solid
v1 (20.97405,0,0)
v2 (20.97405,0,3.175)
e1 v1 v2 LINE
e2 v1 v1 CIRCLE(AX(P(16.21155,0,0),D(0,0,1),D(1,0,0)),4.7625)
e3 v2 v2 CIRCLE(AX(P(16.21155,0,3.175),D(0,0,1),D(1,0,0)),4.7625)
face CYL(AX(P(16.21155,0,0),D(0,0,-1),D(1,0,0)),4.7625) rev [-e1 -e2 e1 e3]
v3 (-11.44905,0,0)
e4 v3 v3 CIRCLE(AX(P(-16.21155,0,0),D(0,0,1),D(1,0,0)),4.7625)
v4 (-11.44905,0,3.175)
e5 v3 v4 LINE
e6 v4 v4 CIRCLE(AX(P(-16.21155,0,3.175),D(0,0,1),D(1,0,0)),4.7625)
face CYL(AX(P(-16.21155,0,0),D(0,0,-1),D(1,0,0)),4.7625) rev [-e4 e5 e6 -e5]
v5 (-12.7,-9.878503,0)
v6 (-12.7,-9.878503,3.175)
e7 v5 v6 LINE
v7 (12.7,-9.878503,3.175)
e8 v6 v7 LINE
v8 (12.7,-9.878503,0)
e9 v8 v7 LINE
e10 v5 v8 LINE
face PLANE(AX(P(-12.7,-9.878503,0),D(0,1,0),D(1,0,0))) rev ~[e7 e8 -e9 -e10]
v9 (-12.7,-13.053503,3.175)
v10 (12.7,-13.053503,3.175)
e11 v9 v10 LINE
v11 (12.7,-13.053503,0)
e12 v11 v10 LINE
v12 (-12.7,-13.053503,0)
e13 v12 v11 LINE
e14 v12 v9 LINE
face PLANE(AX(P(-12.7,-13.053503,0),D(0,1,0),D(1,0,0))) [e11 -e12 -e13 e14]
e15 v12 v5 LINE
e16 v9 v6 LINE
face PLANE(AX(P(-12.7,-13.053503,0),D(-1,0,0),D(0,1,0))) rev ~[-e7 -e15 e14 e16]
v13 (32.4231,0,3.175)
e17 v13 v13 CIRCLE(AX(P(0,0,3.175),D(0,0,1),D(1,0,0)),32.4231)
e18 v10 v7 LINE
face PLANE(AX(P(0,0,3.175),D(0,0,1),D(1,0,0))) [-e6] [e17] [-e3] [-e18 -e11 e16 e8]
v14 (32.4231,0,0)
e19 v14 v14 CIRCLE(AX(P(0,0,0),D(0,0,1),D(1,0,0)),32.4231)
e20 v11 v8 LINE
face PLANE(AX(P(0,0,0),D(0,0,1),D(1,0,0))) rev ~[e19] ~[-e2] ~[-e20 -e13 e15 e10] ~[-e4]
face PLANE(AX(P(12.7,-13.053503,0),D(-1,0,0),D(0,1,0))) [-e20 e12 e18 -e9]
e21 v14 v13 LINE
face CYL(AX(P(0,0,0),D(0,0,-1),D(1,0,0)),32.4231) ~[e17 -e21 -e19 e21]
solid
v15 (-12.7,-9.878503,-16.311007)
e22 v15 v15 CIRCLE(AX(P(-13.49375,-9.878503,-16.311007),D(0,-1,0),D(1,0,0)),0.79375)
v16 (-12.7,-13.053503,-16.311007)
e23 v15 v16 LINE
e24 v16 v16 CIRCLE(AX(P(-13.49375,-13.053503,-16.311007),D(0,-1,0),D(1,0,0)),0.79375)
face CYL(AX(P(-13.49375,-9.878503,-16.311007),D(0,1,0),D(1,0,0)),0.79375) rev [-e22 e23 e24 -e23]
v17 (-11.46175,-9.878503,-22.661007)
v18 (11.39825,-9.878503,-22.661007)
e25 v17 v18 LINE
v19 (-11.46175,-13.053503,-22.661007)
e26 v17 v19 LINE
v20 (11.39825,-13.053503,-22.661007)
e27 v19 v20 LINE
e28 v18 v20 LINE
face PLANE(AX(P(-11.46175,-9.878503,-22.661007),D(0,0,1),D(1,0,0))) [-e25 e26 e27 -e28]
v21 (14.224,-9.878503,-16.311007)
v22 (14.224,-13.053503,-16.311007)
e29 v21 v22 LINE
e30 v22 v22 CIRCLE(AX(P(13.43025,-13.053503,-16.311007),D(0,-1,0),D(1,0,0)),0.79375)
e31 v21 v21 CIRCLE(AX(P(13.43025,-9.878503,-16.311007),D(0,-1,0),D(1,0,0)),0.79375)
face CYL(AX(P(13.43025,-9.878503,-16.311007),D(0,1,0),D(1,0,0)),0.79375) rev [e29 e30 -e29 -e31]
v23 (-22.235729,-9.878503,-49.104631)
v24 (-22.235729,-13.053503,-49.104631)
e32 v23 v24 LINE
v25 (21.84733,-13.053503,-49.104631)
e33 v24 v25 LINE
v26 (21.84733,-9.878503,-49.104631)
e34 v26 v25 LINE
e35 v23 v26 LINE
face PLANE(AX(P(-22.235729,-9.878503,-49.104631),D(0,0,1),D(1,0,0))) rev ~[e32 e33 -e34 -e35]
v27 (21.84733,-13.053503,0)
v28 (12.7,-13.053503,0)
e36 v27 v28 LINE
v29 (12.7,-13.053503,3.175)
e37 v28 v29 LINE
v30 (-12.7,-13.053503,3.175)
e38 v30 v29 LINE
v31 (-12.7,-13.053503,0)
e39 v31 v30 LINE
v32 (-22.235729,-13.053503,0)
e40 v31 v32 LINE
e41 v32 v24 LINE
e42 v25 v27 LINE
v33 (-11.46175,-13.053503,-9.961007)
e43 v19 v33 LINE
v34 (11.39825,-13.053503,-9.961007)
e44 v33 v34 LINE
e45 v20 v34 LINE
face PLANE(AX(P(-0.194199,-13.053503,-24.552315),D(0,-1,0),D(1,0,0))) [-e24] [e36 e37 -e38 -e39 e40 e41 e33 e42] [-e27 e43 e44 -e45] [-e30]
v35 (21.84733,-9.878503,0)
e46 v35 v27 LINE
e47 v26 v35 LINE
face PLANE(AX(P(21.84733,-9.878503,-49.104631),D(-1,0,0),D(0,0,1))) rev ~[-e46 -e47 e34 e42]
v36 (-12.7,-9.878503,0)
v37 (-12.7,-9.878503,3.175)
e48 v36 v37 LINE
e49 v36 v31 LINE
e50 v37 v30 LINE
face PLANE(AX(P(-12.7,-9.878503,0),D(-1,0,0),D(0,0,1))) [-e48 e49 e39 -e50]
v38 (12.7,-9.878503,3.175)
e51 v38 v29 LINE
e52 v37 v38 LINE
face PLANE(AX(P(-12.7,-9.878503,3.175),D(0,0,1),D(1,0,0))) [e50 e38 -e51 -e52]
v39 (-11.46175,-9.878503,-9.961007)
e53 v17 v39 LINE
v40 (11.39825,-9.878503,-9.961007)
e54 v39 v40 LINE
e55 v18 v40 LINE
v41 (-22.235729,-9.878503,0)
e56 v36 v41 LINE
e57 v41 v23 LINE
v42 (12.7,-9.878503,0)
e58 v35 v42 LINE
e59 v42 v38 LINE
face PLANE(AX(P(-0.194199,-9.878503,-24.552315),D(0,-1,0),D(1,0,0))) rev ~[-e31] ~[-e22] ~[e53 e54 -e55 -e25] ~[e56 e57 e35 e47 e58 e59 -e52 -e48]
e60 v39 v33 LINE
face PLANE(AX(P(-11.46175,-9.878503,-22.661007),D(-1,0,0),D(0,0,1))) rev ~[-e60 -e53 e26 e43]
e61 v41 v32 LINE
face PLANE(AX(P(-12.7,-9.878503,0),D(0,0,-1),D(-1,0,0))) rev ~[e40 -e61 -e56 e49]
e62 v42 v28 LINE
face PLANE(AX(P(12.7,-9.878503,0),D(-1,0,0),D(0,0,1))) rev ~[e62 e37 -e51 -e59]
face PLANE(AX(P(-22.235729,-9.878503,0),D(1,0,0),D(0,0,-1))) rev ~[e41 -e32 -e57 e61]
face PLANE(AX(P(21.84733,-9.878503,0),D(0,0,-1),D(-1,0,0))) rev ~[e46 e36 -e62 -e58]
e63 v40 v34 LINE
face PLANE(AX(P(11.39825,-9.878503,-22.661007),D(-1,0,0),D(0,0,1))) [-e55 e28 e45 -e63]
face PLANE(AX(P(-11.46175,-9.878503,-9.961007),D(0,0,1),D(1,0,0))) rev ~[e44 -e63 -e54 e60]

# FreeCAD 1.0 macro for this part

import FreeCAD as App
import Part
import Sketcher
from FreeCAD import Vector
Q = App.Units.Quantity


def add_polygon(sketch, points):
    """Adds a closed chain of lines whose ends are joined by coincident constraints."""
    first, n = sketch.GeometryCount, len(points)
    for a, b in zip(points, points[1:] + points[:1]):
        sketch.addGeometry(Part.LineSegment(App.Vector(*a, 0), App.Vector(*b, 0)), False)
    for i in range(n):
        sketch.addConstraint(Sketcher.Constraint("Coincident", first + i, 2, first + (i + 1) % n, 1))

doc = App.newDocument("Part")
body = doc.addObject("PartDesign::Body", "Body")

sketch1 = body.newObject("Sketcher::SketchObject", "Sketch")
sketch1.AttachmentSupport = (doc.getObject("XY_Plane"), [""])
sketch1.MapMode = "FlatFace"
sketch1.addGeometry(Part.Circle(Vector(0, 0, 0), Vector(0, 0, 1), 32.4), False)
add_polygon(sketch1, [(12.7, -13.1), (-12.7, -13.1), (-12.7, -9.9), (12.7, -9.9)])
sketch1.addGeometry(Part.Circle(Vector(-16.2, 0, 0), Vector(0, 0, 1), 4.8), False)
sketch1.addGeometry(Part.Circle(Vector(16.2, 0, 0), Vector(0, 0, 1), 4.8), False)
sketch1.addConstraint([
    Sketcher.Constraint("Horizontal", 1),
    Sketcher.Constraint("Vertical", 2),
    Sketcher.Constraint("Horizontal", 3),
    Sketcher.Constraint("Vertical", 4),
    Sketcher.Constraint("Coincident", 0, 3, -1, 1),
    Sketcher.Constraint("Equal", 5, 6),
    Sketcher.Constraint("Symmetric", 5, 3, 6, 3, -1, 1),
    Sketcher.Constraint("PointOnObject", 5, 3, -1),
    Sketcher.Constraint("DistanceX", 1, 2, 1, 1, Q("1 in")),
    Sketcher.Constraint("Diameter", 0, Q("2.553 in")),
    Sketcher.Constraint("Diameter", 5, Q("0.375 in")),
    Sketcher.Constraint("DistanceX", 1, 2, -1, 1, Q("0.5 in")),
    Sketcher.Constraint("DistanceY", 2, 1, 2, 2, Q("0.125 in")),
    Sketcher.Constraint("DistanceX", 5, 3, 6, 3, Q("1.2765 in")),
    Sketcher.Constraint("DistanceY", 1, 2, -1, 1, 13.053503),
])
pad1 = body.newObject("PartDesign::Pad", "Pad")
pad1.Profile = sketch1
pad1.Length = Q("0.125 in")
body2 = doc.addObject("PartDesign::Body", "Body001")

sketch2 = body2.newObject("Sketcher::SketchObject", "Sketch001")
sketch2.AttachmentSupport = (doc.getObject("XZ_Plane001"), [""])
sketch2.MapMode = "FlatFace"
sketch2.AttachmentOffset = App.Placement(Vector(0, 0, 9.878503), App.Rotation())
add_polygon(sketch2, [(-22.2, 0), (-22.2, -49.1), (21.8, -49.1), (21.8, 0), (12.7, 0), (12.7, 3.2), (-12.7, 3.2), (-12.7, 0)])
sketch2.addGeometry(Part.Circle(Vector(-13.5, -16.3, 0), Vector(0, 0, 1), 0.8), False)
add_polygon(sketch2, [(11.4, -22.7), (-11.5, -22.7), (-11.5, -10), (11.4, -10)])
sketch2.addGeometry(Part.Circle(Vector(13.4, -16.3, 0), Vector(0, 0, 1), 0.8), False)
sketch2.addConstraint([
    Sketcher.Constraint("Vertical", 0),
    Sketcher.Constraint("Horizontal", 1),
    Sketcher.Constraint("Vertical", 2),
    Sketcher.Constraint("Horizontal", 3),
    Sketcher.Constraint("Vertical", 4),
    Sketcher.Constraint("Horizontal", 5),
    Sketcher.Constraint("Vertical", 6),
    Sketcher.Constraint("Horizontal", 7),
    Sketcher.Constraint("Horizontal", 9),
    Sketcher.Constraint("Vertical", 10),
    Sketcher.Constraint("Horizontal", 11),
    Sketcher.Constraint("Vertical", 12),
    Sketcher.Constraint("Equal", 8, 13),
    Sketcher.Constraint("Symmetric", 3, 2, 6, 2, -1, 1),
    Sketcher.Constraint("PointOnObject", 2, 2, -1),
    Sketcher.Constraint("Horizontal", 8, 3, 13, 3),
    Sketcher.Constraint("DistanceX", 5, 2, 5, 1, Q("1 in")),
    Sketcher.Constraint("Diameter", 8, Q("0.0625 in")),
    Sketcher.Constraint("DistanceX", 9, 2, 9, 1, Q("0.9 in")),
    Sketcher.Constraint("DistanceY", 10, 1, 10, 2, Q("0.5 in")),
    Sketcher.Constraint("DistanceY", 4, 1, 4, 2, Q("0.125 in")),
    Sketcher.Constraint("DistanceX", 8, 3, 13, 3, Q("1.06 in")),
    Sketcher.Constraint("DistanceX", 8, 3, 9, 2, Q("0.08 in")),
    Sketcher.Constraint("DistanceY", 9, 2, 8, 3, Q("0.25 in")),
    Sketcher.Constraint("DistanceX", 8, 3, -1, 1, Q("0.53125 in")),
    Sketcher.Constraint("DistanceX", 1, 1, 1, 2, 44.083059),
    Sketcher.Constraint("DistanceX", 3, 2, 3, 1, 9.14733),
    Sketcher.Constraint("DistanceY", 0, 2, 0, 1, 49.104631),
    Sketcher.Constraint("DistanceY", 8, 3, -1, 1, 16.311007),
])
pad2 = body2.newObject("PartDesign::Pad", "Pad001")
pad2.Profile = sketch2
pad2.Length = Q("0.125 in")

doc.recompute()
